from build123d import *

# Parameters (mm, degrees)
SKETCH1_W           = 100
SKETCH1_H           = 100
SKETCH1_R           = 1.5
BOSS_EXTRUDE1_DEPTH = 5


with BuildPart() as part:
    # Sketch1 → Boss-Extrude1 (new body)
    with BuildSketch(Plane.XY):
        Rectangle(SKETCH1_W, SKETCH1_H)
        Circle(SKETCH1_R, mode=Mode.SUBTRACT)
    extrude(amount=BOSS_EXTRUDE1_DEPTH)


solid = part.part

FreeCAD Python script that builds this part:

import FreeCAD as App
import Part
import Sketcher
Q = App.Units.Quantity

doc = App.newDocument("Part")
params = doc.addObject("Spreadsheet::Sheet", "Params")
for row, (alias, value) in enumerate([
    ("sketch1_diameter", "3 mm"),
    ("sketch1_width", "100 mm"),
    ("pad1_length", "5 mm"),
], start=1):
    params.set(f"A{row}", alias)
    params.set(f"B{row}", "=" + value)
    params.setAlias(f"B{row}", alias)

body = doc.addObject("PartDesign::Body", "Body")

sketch1 = body.newObject("Sketcher::SketchObject", "Sketch")
sketch1.AttachmentSupport = (doc.getObject("XY_Plane"), [""])
sketch1.MapMode = "FlatFace"
sketch1.addGeometry([
    Part.LineSegment(App.Vector(-50, 50, 0), App.Vector(-50, -50, 0)),
    Part.LineSegment(App.Vector(-50, -50, 0), App.Vector(50, -50, 0)),
    Part.LineSegment(App.Vector(50, -50, 0), App.Vector(50, 50, 0)),
    Part.LineSegment(App.Vector(50, 50, 0), App.Vector(-50, 50, 0)),
    Part.Circle(App.Vector(0, 0, 0), App.Vector(0, 0, 1), 1.5),
], False)
sketch1.addConstraint([
    Sketcher.Constraint("Coincident", 0, 2, 1, 1),
    Sketcher.Constraint("Coincident", 1, 2, 2, 1),
    Sketcher.Constraint("Coincident", 2, 2, 3, 1),
    Sketcher.Constraint("Coincident", 3, 2, 0, 1),
    Sketcher.Constraint("Vertical", 0),
    Sketcher.Constraint("Horizontal", 1),
    Sketcher.Constraint("Vertical", 2),
    Sketcher.Constraint("Horizontal", 3),
    Sketcher.Constraint("Coincident", 4, 3, -1, 1),
    Sketcher.Constraint("Symmetric", 0, 2, 2, 2, -1, 1),
    Sketcher.Constraint("Equal", 3, 0),
    Sketcher.Constraint("Diameter", 4, Q("3 mm")),
    Sketcher.Constraint("DistanceX", 1, 1, 1, 2, Q("100 mm")),
])
sketch1.setExpression("Constraints[11]", "Params.sketch1_diameter")
sketch1.setExpression("Constraints[12]", "Params.sketch1_width")
pad1 = body.newObject("PartDesign::Pad", "Pad")
pad1.Profile = sketch1
pad1.setExpression("Length", "Params.pad1_length")

doc.recompute()
